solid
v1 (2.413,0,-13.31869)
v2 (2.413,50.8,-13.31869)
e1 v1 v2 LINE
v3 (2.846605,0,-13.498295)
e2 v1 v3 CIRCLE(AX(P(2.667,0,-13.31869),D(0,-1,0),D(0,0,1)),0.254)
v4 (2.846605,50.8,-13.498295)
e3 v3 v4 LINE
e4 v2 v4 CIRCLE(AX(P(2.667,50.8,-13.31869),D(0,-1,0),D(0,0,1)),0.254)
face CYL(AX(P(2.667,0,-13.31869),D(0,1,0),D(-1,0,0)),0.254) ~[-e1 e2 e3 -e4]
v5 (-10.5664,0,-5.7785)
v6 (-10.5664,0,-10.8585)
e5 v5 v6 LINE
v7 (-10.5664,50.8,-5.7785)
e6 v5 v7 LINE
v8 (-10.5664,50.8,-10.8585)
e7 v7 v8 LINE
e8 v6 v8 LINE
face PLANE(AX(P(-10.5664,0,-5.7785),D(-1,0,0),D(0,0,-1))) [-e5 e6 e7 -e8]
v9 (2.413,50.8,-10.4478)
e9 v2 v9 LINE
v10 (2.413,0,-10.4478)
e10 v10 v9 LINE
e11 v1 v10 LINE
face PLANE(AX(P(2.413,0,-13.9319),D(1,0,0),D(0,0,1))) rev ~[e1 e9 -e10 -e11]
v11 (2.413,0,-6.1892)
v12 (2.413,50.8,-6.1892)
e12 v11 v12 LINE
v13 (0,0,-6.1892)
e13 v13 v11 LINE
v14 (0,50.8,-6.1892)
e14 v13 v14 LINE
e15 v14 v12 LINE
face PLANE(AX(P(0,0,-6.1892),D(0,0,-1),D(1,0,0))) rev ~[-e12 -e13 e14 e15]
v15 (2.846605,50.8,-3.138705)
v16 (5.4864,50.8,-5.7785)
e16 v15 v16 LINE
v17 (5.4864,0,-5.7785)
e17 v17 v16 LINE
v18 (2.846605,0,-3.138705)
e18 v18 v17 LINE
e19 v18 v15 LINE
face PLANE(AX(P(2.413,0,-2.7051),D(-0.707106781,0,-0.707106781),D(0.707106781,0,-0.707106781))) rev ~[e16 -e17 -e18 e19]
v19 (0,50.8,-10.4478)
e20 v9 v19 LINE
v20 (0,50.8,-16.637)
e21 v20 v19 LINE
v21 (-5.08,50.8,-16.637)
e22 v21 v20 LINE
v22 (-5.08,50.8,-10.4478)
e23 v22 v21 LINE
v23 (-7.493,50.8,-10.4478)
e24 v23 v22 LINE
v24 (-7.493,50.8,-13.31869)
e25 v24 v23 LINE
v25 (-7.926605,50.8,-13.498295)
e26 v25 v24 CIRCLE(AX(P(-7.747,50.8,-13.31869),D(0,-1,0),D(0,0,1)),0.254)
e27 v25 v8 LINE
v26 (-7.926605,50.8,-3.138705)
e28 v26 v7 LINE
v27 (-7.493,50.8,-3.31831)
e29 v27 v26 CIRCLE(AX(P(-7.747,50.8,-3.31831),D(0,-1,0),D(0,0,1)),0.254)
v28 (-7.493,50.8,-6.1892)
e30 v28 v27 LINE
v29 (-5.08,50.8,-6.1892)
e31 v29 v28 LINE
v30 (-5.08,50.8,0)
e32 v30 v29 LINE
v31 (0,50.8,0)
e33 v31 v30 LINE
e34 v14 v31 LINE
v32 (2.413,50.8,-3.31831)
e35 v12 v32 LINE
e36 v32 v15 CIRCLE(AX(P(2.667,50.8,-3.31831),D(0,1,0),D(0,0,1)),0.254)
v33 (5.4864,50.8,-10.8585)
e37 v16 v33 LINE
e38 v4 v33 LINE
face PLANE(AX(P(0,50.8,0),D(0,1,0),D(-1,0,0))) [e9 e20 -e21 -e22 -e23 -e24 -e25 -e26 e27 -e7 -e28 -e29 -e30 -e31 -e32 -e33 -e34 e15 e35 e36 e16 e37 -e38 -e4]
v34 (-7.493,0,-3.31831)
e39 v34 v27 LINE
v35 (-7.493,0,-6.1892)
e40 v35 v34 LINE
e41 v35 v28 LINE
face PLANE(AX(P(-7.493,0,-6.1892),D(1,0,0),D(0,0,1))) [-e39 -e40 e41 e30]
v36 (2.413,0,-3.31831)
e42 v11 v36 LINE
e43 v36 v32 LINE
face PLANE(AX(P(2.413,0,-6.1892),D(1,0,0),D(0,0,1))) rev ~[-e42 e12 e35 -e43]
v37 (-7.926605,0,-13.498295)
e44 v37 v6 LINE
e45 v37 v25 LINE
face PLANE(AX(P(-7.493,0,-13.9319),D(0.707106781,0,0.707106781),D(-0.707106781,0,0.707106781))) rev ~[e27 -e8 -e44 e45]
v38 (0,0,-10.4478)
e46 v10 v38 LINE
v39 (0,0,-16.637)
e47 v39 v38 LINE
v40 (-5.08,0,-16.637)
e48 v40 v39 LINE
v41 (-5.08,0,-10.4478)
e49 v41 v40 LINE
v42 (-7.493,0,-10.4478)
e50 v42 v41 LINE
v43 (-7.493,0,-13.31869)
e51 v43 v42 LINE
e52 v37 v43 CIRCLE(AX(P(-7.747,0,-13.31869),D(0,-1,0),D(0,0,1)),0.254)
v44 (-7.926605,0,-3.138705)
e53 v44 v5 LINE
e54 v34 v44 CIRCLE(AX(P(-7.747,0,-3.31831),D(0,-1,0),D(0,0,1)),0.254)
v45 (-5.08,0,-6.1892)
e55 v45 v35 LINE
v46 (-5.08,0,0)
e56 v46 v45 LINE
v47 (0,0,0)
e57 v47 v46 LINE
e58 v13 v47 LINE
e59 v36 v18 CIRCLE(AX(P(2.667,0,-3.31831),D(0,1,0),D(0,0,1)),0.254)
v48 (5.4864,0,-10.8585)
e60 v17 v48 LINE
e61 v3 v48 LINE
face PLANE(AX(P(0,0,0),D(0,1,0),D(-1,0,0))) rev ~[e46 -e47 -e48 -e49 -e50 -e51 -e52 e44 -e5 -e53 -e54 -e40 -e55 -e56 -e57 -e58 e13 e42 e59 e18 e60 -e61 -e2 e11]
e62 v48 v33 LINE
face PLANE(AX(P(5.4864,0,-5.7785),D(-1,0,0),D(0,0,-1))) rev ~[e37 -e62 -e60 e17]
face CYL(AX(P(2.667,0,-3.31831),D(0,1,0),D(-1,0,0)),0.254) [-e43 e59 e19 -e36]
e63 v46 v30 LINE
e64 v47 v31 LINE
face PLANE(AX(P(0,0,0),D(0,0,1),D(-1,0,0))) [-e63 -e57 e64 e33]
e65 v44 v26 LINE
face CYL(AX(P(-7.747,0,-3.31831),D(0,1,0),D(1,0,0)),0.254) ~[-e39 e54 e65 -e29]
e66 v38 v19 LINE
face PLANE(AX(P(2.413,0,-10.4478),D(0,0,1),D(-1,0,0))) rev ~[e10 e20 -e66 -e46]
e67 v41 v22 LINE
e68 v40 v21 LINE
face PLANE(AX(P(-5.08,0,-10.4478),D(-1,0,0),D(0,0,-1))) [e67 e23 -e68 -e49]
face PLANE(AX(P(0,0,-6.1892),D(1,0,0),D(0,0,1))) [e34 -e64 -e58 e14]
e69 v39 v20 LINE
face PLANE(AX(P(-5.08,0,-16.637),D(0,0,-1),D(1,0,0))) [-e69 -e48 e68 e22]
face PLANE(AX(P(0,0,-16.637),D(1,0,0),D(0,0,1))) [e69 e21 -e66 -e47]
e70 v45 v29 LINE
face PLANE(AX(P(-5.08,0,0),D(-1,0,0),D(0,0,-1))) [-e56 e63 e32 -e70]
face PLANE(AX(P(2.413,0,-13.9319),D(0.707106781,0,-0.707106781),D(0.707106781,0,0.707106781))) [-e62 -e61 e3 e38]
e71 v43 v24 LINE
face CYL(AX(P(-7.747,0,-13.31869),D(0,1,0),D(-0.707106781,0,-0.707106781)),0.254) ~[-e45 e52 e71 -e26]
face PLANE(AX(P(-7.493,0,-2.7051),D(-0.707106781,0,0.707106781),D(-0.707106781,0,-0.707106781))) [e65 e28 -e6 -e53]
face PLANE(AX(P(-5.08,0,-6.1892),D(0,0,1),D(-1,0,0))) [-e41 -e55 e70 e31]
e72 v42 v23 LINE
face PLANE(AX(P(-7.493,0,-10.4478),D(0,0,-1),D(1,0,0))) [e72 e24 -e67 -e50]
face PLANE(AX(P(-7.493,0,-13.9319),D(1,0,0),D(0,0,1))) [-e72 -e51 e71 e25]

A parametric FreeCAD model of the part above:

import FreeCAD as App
import Part
import Sketcher
Q = App.Units.Quantity


def edges_at(feature, points):
    """Names of the edges that pass closest to the given points."""
    edges = feature.Shape.Edges
    near = lambda p: min(range(len(edges)), key=lambda i: edges[i].distToShape(Part.Vertex(*p))[0])
    return sorted({f"Edge{near(p) + 1}" for p in points})


def add_polygon(sketch, points):
    """Adds a closed chain of lines whose ends are joined by coincident constraints."""
    first, n = sketch.GeometryCount, len(points)
    for a, b in zip(points, points[1:] + points[:1]):
        sketch.addGeometry(Part.LineSegment(App.Vector(*a, 0), App.Vector(*b, 0)), False)
    for i in range(n):
        sketch.addConstraint(Sketcher.Constraint("Coincident", first + i, 2, first + (i + 1) % n, 1))

doc = App.newDocument("Part")
body = doc.addObject("PartDesign::Body", "Body")

# Sketch on XZ plane
sketch1 = body.newObject("Sketcher::SketchObject", "Sketch")
sketch1.AttachmentSupport = (doc.getObject("XZ_Plane"), [""])
sketch1.MapMode = "FlatFace"
add_polygon(sketch1, [(-5.08, 0), (0, 0), (0, -6.1892), (2.413, -6.1892), (2.413, -2.7051), (5.4864, -5.7785), (5.4864, -10.8585), (2.413, -13.9319), (2.413, -10.4478), (0, -10.4478), (0, -16.637), (-5.08, -16.637), (-5.08, -10.4478), (-7.493, -10.4478), (-7.493, -13.9319), (-10.5664, -10.8585), (-10.5664, -5.7785), (-7.493, -2.7051), (-7.493, -6.1892), (-5.08, -6.1892)])  # lines 0-19
sketch1.addConstraint([
    Sketcher.Constraint("Horizontal", 0),
    Sketcher.Constraint("Vertical", 1),
    Sketcher.Constraint("Horizontal", 2),
    Sketcher.Constraint("Vertical", 3),
    Sketcher.Constraint("Vertical", 5),
    Sketcher.Constraint("Vertical", 7),
    Sketcher.Constraint("Horizontal", 8),
    Sketcher.Constraint("Vertical", 9),
    Sketcher.Constraint("Horizontal", 10),
    Sketcher.Constraint("Vertical", 11),
    Sketcher.Constraint("Horizontal", 12),
    Sketcher.Constraint("Vertical", 13),
    Sketcher.Constraint("Vertical", 15),
    Sketcher.Constraint("Vertical", 17),
    Sketcher.Constraint("Horizontal", 18),
    Sketcher.Constraint("Vertical", 19),
    Sketcher.Constraint("Coincident", 0, 2, -1, 1),
    Sketcher.Constraint("PointOnObject", 8, 2, -2),
    Sketcher.Constraint("Perpendicular", 4, 6),
    Sketcher.Constraint("Perpendicular", 6, 14),
    Sketcher.Constraint("Perpendicular", 14, 16),
    Sketcher.Constraint("Horizontal", 8, 2, 11, 2),
    Sketcher.Constraint("Horizontal", 6, 2, 13, 2),
    Sketcher.Constraint("Horizontal", 5, 2, 14, 2),
    Sketcher.Constraint("Horizontal", 4, 2, 15, 2),
    Sketcher.Constraint("Horizontal", 3, 2, 16, 2),
    Sketcher.Constraint("Horizontal", 2, 2, 17, 2),
    Sketcher.Constraint("Vertical", 3, 2, 6, 2),
    Sketcher.Constraint("Vertical", 13, 2, 16, 2),
    Sketcher.Constraint("Vertical", 11, 2, 18, 2),
    Sketcher.Constraint("Equal", 8, 12),
    Sketcher.Constraint("Equal", 10, 5),
    Sketcher.Constraint("Equal", 3, 7),
    Sketcher.Constraint("Equal", 1, 9),
    Sketcher.Constraint("DistanceX", 0, 1, 0, 2, Q("0.2 in")),
    Sketcher.Constraint("DistanceX", 2, 1, 2, 2, Q("0.095 in")),
    Sketcher.Constraint("DistanceY", 9, 2, -1, 1, Q("0.655 in")),
    Sketcher.Constraint("DistanceX", 2, 2, 4, 2, Q("0.121 in")),
    Sketcher.Constraint("DistanceY", 1, 2, 1, 1, 6.1892),
])
pad1 = body.newObject("PartDesign::Pad", "Pad")
pad1.Profile = sketch1
pad1.Length = Q("2 in")
pad1.Reversed = True
doc.recompute()

fillet = body.newObject("PartDesign::Fillet", "Fillet")
fillet.Base = (pad1, edges_at(pad1, [
    (2.413, 25.4, -13.932),
    (-7.493, 25.4, -13.932),
    (2.413, 25.4, -2.705),
    (-7.493, 25.4, -2.705),
]))
fillet.Radius = Q("0.01 in")

doc.recompute()
